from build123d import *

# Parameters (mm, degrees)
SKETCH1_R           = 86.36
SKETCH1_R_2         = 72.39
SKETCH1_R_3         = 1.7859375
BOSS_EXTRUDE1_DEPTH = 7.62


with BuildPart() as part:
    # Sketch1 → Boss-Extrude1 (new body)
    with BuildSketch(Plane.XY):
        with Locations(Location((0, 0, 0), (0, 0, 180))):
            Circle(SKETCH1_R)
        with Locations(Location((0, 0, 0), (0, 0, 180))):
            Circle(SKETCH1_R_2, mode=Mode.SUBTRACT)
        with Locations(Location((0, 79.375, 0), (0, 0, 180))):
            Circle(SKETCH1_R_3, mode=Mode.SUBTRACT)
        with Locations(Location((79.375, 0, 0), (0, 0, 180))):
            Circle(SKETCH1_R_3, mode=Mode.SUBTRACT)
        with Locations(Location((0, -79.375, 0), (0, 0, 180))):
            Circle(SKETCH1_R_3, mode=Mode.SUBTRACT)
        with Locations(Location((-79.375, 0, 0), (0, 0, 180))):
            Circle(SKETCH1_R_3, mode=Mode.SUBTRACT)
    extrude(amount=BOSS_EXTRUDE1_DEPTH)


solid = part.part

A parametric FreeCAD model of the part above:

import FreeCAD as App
import Part
import Sketcher
from FreeCAD import Vector
Q = App.Units.Quantity

doc = App.newDocument("Part")
body = doc.addObject("PartDesign::Body", "Body")

# Sketch on XY plane
sketch1 = doc.addObject("Sketcher::SketchObject", "Sketch")
body.addObject(sketch1)
sketch1.AttachmentSupport = (doc.XY_Plane, [""])
sketch1.MapMode = "FlatFace"
sketch1.addGeometry([
    Part.Circle(Vector(0, 0, 0), Vector(0, 0, 1), 86.4),  # 0
    Part.Circle(Vector(79.4, 0, 0), Vector(0, 0, 1), 1.8),  # 1
    Part.Circle(Vector(0, 79.4, 0), Vector(0, 0, 1), 1.8),  # 2
    Part.Circle(Vector(0, 0, 0), Vector(0, 0, 1), 72.4),  # 3
    Part.Circle(Vector(-79.4, 0, 0), Vector(0, 0, 1), 1.8),  # 4
    Part.Circle(Vector(0, -79.4, 0), Vector(0, 0, 1), 1.8),  # 5
], False)
sketch1.addConstraint([
    Sketcher.Constraint("Coincident", 0, 3, -1, 1),
    Sketcher.Constraint("Coincident", 3, 3, -1, 1),
    Sketcher.Constraint("Equal", 1, 2),
    Sketcher.Constraint("Equal", 2, 4),
    Sketcher.Constraint("Equal", 4, 5),
    Sketcher.Constraint("Symmetric", 1, 3, 4, 3, -1, 1),
    Sketcher.Constraint("Symmetric", 2, 3, 5, 3, -1, 1),
    Sketcher.Constraint("PointOnObject", 1, 3, -1),
    Sketcher.Constraint("PointOnObject", 2, 3, -2),
    Sketcher.Constraint("Diameter", 0, Q("6.8 in")),
    Sketcher.Constraint("Diameter", 3, Q("5.7 in")),
    Sketcher.Constraint("Diameter", 1, Q("0.140625 in")),
    Sketcher.Constraint("DistanceX", 4, 3, 1, 3, Q("6.25 in")),
    Sketcher.Constraint("DistanceY", 5, 3, 2, 3, Q("6.25 in")),
])
pad1 = doc.addObject("PartDesign::Pad", "Pad")
body.addObject(pad1)
pad1.Profile = sketch1
pad1.Length = Q("0.3 in")

doc.recompute()
